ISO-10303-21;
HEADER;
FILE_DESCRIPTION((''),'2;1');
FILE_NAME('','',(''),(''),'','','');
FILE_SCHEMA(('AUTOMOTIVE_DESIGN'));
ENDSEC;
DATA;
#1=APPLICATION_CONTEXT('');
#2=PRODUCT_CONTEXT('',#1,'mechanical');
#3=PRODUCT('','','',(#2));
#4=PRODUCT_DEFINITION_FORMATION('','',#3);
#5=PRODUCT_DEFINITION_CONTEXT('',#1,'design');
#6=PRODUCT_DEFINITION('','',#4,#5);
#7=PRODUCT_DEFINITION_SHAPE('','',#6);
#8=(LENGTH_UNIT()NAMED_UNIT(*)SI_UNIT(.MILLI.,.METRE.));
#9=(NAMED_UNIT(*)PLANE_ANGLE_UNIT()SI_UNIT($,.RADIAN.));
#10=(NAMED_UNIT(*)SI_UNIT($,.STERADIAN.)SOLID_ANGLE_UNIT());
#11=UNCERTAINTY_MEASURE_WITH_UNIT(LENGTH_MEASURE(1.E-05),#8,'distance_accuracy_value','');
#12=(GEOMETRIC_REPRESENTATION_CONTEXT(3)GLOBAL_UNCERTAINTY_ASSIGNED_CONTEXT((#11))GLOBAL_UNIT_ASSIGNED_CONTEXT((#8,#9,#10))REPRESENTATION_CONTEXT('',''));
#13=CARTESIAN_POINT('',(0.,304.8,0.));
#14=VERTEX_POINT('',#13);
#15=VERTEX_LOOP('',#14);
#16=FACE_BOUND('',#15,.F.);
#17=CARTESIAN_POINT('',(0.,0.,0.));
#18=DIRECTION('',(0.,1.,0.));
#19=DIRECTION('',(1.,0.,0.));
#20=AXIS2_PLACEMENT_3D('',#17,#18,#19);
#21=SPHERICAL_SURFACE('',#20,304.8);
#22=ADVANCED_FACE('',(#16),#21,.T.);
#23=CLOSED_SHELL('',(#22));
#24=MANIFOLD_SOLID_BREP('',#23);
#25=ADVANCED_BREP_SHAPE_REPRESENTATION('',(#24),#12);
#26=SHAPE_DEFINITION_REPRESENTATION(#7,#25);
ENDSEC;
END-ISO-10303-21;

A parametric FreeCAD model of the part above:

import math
import FreeCAD as App
import Part
import Sketcher
from FreeCAD import Vector
Q = App.Units.Quantity

doc = App.newDocument("Part")
params = doc.addObject("Spreadsheet::Sheet", "Params")
for row, (alias, value) in enumerate([
    ("sketch1_radius", "12 in"),
    ("revolution_angle", "360 deg"),
], start=1):
    params.set(f"A{row}", alias)
    params.set(f"B{row}", "=" + value)
    params.setAlias(f"B{row}", alias)

body = doc.addObject("PartDesign::Body", "Body")

sketch1 = body.newObject("Sketcher::SketchObject", "Sketch")
sketch1.AttachmentSupport = (doc.getObject("XY_Plane"), [""])
sketch1.MapMode = "FlatFace"
sketch1.addGeometry([
    Part.LineSegment(Vector(0, 305, 0), Vector(0, -305, 0)),
    Part.ArcOfCircle(Part.Circle(Vector(0, 0, 0), Vector(0, 0, 1), 305), math.radians(-90), math.radians(90)),
], False)
sketch1.addConstraint([
    Sketcher.Constraint("Coincident", 0, 1, 1, 2),
    Sketcher.Constraint("Coincident", 1, 1, 0, 2),
    Sketcher.Constraint("Vertical", 0),
    Sketcher.Constraint("Coincident", 1, 3, -1, 1),
    Sketcher.Constraint("PointOnObject", 0, 1, -2),
    Sketcher.Constraint("Radius", 1, Q("12 in")),
])
sketch1.setExpression("Constraints[5]", "Params.sketch1_radius")
revolution = body.newObject("PartDesign::Revolution", "Revolution")
revolution.Profile = sketch1
revolution.ReferenceAxis = (sketch1, ["V_Axis"])
revolution.setExpression("Angle", "Params.revolution_angle")

doc.recompute()
